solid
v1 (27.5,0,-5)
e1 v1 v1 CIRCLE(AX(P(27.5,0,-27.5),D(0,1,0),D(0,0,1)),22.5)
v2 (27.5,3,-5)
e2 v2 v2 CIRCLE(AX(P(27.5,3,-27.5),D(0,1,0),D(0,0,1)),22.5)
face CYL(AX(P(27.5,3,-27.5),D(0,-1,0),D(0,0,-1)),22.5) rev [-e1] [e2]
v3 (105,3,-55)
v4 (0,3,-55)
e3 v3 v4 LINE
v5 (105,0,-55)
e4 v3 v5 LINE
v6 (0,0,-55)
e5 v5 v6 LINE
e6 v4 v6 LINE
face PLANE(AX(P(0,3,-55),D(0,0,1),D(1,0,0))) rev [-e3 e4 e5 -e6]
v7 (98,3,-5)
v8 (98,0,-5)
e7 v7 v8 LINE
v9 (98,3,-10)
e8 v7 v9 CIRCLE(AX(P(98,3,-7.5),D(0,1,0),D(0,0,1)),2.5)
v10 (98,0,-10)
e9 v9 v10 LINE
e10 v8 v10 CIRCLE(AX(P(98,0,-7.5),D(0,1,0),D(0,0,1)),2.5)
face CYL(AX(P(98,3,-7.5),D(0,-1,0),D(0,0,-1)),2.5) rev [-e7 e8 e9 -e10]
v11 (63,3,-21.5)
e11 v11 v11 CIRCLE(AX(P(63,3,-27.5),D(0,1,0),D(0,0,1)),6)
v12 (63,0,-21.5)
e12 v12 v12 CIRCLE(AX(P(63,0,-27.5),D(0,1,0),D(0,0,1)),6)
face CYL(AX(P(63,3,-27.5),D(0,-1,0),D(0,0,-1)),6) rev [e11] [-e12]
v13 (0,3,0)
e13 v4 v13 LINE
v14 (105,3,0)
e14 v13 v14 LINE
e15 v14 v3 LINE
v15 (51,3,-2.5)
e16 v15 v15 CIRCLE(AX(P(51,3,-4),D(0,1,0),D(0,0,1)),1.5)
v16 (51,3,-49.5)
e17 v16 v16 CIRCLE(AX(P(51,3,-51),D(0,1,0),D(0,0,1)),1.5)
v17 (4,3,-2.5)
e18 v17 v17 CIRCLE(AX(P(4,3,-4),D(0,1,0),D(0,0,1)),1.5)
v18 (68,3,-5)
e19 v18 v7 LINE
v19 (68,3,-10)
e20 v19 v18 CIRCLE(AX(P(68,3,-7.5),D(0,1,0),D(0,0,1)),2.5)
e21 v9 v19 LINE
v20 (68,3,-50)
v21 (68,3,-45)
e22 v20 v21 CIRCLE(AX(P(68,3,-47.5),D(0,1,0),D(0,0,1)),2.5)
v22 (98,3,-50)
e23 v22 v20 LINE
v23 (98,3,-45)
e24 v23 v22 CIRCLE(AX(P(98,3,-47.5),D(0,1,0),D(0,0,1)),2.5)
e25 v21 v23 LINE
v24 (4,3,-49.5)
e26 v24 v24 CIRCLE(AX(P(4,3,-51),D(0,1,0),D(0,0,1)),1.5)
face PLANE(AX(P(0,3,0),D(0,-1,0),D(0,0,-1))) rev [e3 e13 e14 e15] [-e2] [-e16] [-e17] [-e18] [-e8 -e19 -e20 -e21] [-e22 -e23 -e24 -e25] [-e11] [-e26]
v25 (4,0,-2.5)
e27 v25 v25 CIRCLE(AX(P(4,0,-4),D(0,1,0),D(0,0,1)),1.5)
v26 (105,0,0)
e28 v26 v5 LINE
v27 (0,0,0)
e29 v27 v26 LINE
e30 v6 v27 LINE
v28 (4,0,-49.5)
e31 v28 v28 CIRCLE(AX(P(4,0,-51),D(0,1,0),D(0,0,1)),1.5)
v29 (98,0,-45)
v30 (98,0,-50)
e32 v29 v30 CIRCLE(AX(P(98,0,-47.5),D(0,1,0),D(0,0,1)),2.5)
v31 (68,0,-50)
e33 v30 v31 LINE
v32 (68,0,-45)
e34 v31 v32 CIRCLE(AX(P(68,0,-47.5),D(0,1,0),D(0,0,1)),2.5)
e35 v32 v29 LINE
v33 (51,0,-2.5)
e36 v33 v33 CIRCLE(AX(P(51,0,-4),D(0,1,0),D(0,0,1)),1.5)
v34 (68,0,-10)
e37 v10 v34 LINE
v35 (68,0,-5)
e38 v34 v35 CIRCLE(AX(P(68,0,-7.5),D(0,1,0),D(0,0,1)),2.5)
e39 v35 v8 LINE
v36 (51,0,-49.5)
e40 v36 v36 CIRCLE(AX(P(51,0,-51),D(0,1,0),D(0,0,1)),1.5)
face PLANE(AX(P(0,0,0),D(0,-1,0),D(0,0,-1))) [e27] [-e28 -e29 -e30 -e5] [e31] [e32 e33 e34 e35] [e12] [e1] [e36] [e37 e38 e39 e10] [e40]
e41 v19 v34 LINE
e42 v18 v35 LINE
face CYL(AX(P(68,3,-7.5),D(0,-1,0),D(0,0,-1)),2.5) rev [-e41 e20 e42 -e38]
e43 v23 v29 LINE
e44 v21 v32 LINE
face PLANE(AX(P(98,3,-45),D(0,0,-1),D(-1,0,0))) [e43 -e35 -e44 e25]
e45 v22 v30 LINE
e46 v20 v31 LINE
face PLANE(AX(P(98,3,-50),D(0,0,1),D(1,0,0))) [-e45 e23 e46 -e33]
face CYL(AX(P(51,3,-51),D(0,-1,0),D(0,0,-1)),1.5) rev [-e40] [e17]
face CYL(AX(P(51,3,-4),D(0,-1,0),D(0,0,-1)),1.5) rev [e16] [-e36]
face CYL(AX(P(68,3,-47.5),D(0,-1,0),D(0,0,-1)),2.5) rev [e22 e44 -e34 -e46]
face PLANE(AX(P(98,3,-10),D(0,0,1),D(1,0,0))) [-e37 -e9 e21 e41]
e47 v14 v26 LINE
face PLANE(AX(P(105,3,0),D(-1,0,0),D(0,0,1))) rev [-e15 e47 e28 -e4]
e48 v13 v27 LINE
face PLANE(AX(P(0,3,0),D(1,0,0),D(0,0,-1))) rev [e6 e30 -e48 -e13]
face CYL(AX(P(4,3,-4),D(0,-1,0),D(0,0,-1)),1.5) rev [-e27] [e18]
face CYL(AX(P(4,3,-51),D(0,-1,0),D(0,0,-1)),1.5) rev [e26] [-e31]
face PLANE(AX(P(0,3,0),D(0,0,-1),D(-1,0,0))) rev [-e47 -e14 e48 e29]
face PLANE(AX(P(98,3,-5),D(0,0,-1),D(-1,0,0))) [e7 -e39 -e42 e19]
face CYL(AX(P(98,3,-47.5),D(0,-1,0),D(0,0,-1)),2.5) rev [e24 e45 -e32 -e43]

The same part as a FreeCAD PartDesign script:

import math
import FreeCAD as App
import Part
import Sketcher
from FreeCAD import Vector
Q = App.Units.Quantity

doc = App.newDocument("Part")
params = doc.addObject("Spreadsheet::Sheet", "Params")
for row, (alias, value) in enumerate([
    ("sketch1_diameter", "3 mm"),
    ("sketch1_diameter2", "45 mm"),
    ("sketch1_diameter3", "12 mm"),
    ("sketch1_radius", "2.5 mm"),
    ("sketch1_width", "105 mm"),
    ("pad1_length", "3 mm"),
], start=1):
    params.set(f"A{row}", alias)
    params.set(f"B{row}", "=" + value)
    params.setAlias(f"B{row}", alias)

body = doc.addObject("PartDesign::Body", "Body")

sketch1 = doc.addObject("Sketcher::SketchObject", "Sketch")
body.addObject(sketch1)
sketch1.AttachmentSupport = (doc.XZ_Plane, [""])
sketch1.MapMode = "FlatFace"
sketch1.addGeometry([
    Part.LineSegment(Vector(0, -55, 0), Vector(0, 0, 0)),
    Part.LineSegment(Vector(0, 0, 0), Vector(105, 0, 0)),
    Part.LineSegment(Vector(105, 0, 0), Vector(105, -55, 0)),
    Part.LineSegment(Vector(105, -55, 0), Vector(0, -55, 0)),
    Part.Circle(Vector(4, -4, 0), Vector(0, 0, 1), 1.5),
    Part.Circle(Vector(51, -4, 0), Vector(0, 0, 1), 1.5),
    Part.ArcOfCircle(Part.Circle(Vector(98, -7.5, 0), Vector(0, 0, 1), 2.5), math.radians(-90), math.radians(90)),
    Part.LineSegment(Vector(98, -5, 0), Vector(68, -5, 0)),
    Part.ArcOfCircle(Part.Circle(Vector(68, -7.5, 0), Vector(0, 0, 1), 2.5), math.radians(90), math.radians(270)),
    Part.LineSegment(Vector(68, -10, 0), Vector(98, -10, 0)),
    Part.Circle(Vector(27.5, -27.5, 0), Vector(0, 0, 1), 22.5),
    Part.Circle(Vector(4, -51, 0), Vector(0, 0, 1), 1.5),
    Part.Circle(Vector(51, -51, 0), Vector(0, 0, 1), 1.5),
    Part.Circle(Vector(63, -27.5, 0), Vector(0, 0, 1), 6),
    Part.ArcOfCircle(Part.Circle(Vector(98, -47.5, 0), Vector(0, 0, 1), 2.5), math.radians(-90), math.radians(90)),
    Part.LineSegment(Vector(98, -45, 0), Vector(68, -45, 0)),
    Part.ArcOfCircle(Part.Circle(Vector(68, -47.5, 0), Vector(0, 0, 1), 2.5), math.radians(90), math.radians(270)),
    Part.LineSegment(Vector(68, -50, 0), Vector(98, -50, 0)),
], False)
sketch1.addConstraint([
    Sketcher.Constraint("Coincident", 0, 2, 1, 1),
    Sketcher.Constraint("Coincident", 1, 2, 2, 1),
    Sketcher.Constraint("Coincident", 2, 2, 3, 1),
    Sketcher.Constraint("Coincident", 3, 2, 0, 1),
    Sketcher.Constraint("Tangent", 6, 2, 7, 1),
    Sketcher.Constraint("Tangent", 7, 2, 8, 1),
    Sketcher.Constraint("Tangent", 8, 2, 9, 1),
    Sketcher.Constraint("Tangent", 9, 2, 6, 1),
    Sketcher.Constraint("Tangent", 14, 2, 15, 1),
    Sketcher.Constraint("Tangent", 15, 2, 16, 1),
    Sketcher.Constraint("Tangent", 16, 2, 17, 1),
    Sketcher.Constraint("Tangent", 17, 2, 14, 1),
    Sketcher.Constraint("Vertical", 0),
    Sketcher.Constraint("Horizontal", 1),
    Sketcher.Constraint("Vertical", 2),
    Sketcher.Constraint("Horizontal", 3),
    Sketcher.Constraint("Horizontal", 7),
    Sketcher.Constraint("Horizontal", 9),
    Sketcher.Constraint("Horizontal", 15),
    Sketcher.Constraint("Horizontal", 17),
    Sketcher.Constraint("Coincident", 0, 2, -1, 1),
    Sketcher.Constraint("Equal", 4, 5),
    Sketcher.Constraint("Equal", 5, 11),
    Sketcher.Constraint("Equal", 11, 12),
    Sketcher.Constraint("Equal", 8, 14),
    Sketcher.Constraint("Horizontal", 4, 3, 5, 3),
    Sketcher.Constraint("Horizontal", 11, 3, 12, 3),
    Sketcher.Constraint("Horizontal", 10, 3, 13, 3),
    Sketcher.Constraint("Vertical", 4, 3, 11, 3),
    Sketcher.Constraint("Vertical", 5, 3, 12, 3),
    Sketcher.Constraint("Vertical", 6, 3, 14, 3),
    Sketcher.Constraint("Vertical", 8, 3, 16, 3),
    Sketcher.Constraint("Diameter", 4, Q("3 mm")),
    Sketcher.Constraint("Diameter", 10, Q("45 mm")),
    Sketcher.Constraint("Diameter", 13, Q("12 mm")),
    Sketcher.Constraint("Radius", 6, Q("2.5 mm")),
    Sketcher.Constraint("DistanceX", 1, 1, 1, 2, Q("105 mm")),
    Sketcher.Constraint("DistanceX", 7, 2, 7, 1, Q("30 mm")),
    Sketcher.Constraint("DistanceY", 0, 1, 0, 2, Q("55 mm")),
    Sketcher.Constraint("DistanceX", -1, 1, 4, 3, Q("4 mm")),
    Sketcher.Constraint("DistanceY", 4, 3, -1, 1, Q("4 mm")),
    Sketcher.Constraint("DistanceX", -1, 1, 5, 3, Q("51 mm")),
    Sketcher.Constraint("DistanceX", -1, 1, 6, 3, Q("98 mm")),
    Sketcher.Constraint("DistanceY", 11, 3, -1, 1, Q("51 mm")),
    Sketcher.Constraint("DistanceX", -1, 1, 13, 3, Q("63 mm")),
    Sketcher.Constraint("DistanceY", 6, 2, -1, 1, Q("5 mm")),
    Sketcher.Constraint("DistanceY", 14, 2, -1, 1, Q("45 mm")),
    Sketcher.Constraint("DistanceY", 10, 3, 8, 3, Q("20 mm")),
    Sketcher.Constraint("DistanceX", -1, 1, 10, 3, Q("27.5 mm")),
])
sketch1.setExpression("Constraints[32]", "Params.sketch1_diameter")
sketch1.setExpression("Constraints[33]", "Params.sketch1_diameter2")
sketch1.setExpression("Constraints[34]", "Params.sketch1_diameter3")
sketch1.setExpression("Constraints[35]", "Params.sketch1_radius")
sketch1.setExpression("Constraints[36]", "Params.sketch1_width")
pad1 = doc.addObject("PartDesign::Pad", "Pad")
body.addObject(pad1)
pad1.Profile = sketch1
pad1.setExpression("Length", "Params.pad1_length")
pad1.Reversed = True

doc.recompute()
